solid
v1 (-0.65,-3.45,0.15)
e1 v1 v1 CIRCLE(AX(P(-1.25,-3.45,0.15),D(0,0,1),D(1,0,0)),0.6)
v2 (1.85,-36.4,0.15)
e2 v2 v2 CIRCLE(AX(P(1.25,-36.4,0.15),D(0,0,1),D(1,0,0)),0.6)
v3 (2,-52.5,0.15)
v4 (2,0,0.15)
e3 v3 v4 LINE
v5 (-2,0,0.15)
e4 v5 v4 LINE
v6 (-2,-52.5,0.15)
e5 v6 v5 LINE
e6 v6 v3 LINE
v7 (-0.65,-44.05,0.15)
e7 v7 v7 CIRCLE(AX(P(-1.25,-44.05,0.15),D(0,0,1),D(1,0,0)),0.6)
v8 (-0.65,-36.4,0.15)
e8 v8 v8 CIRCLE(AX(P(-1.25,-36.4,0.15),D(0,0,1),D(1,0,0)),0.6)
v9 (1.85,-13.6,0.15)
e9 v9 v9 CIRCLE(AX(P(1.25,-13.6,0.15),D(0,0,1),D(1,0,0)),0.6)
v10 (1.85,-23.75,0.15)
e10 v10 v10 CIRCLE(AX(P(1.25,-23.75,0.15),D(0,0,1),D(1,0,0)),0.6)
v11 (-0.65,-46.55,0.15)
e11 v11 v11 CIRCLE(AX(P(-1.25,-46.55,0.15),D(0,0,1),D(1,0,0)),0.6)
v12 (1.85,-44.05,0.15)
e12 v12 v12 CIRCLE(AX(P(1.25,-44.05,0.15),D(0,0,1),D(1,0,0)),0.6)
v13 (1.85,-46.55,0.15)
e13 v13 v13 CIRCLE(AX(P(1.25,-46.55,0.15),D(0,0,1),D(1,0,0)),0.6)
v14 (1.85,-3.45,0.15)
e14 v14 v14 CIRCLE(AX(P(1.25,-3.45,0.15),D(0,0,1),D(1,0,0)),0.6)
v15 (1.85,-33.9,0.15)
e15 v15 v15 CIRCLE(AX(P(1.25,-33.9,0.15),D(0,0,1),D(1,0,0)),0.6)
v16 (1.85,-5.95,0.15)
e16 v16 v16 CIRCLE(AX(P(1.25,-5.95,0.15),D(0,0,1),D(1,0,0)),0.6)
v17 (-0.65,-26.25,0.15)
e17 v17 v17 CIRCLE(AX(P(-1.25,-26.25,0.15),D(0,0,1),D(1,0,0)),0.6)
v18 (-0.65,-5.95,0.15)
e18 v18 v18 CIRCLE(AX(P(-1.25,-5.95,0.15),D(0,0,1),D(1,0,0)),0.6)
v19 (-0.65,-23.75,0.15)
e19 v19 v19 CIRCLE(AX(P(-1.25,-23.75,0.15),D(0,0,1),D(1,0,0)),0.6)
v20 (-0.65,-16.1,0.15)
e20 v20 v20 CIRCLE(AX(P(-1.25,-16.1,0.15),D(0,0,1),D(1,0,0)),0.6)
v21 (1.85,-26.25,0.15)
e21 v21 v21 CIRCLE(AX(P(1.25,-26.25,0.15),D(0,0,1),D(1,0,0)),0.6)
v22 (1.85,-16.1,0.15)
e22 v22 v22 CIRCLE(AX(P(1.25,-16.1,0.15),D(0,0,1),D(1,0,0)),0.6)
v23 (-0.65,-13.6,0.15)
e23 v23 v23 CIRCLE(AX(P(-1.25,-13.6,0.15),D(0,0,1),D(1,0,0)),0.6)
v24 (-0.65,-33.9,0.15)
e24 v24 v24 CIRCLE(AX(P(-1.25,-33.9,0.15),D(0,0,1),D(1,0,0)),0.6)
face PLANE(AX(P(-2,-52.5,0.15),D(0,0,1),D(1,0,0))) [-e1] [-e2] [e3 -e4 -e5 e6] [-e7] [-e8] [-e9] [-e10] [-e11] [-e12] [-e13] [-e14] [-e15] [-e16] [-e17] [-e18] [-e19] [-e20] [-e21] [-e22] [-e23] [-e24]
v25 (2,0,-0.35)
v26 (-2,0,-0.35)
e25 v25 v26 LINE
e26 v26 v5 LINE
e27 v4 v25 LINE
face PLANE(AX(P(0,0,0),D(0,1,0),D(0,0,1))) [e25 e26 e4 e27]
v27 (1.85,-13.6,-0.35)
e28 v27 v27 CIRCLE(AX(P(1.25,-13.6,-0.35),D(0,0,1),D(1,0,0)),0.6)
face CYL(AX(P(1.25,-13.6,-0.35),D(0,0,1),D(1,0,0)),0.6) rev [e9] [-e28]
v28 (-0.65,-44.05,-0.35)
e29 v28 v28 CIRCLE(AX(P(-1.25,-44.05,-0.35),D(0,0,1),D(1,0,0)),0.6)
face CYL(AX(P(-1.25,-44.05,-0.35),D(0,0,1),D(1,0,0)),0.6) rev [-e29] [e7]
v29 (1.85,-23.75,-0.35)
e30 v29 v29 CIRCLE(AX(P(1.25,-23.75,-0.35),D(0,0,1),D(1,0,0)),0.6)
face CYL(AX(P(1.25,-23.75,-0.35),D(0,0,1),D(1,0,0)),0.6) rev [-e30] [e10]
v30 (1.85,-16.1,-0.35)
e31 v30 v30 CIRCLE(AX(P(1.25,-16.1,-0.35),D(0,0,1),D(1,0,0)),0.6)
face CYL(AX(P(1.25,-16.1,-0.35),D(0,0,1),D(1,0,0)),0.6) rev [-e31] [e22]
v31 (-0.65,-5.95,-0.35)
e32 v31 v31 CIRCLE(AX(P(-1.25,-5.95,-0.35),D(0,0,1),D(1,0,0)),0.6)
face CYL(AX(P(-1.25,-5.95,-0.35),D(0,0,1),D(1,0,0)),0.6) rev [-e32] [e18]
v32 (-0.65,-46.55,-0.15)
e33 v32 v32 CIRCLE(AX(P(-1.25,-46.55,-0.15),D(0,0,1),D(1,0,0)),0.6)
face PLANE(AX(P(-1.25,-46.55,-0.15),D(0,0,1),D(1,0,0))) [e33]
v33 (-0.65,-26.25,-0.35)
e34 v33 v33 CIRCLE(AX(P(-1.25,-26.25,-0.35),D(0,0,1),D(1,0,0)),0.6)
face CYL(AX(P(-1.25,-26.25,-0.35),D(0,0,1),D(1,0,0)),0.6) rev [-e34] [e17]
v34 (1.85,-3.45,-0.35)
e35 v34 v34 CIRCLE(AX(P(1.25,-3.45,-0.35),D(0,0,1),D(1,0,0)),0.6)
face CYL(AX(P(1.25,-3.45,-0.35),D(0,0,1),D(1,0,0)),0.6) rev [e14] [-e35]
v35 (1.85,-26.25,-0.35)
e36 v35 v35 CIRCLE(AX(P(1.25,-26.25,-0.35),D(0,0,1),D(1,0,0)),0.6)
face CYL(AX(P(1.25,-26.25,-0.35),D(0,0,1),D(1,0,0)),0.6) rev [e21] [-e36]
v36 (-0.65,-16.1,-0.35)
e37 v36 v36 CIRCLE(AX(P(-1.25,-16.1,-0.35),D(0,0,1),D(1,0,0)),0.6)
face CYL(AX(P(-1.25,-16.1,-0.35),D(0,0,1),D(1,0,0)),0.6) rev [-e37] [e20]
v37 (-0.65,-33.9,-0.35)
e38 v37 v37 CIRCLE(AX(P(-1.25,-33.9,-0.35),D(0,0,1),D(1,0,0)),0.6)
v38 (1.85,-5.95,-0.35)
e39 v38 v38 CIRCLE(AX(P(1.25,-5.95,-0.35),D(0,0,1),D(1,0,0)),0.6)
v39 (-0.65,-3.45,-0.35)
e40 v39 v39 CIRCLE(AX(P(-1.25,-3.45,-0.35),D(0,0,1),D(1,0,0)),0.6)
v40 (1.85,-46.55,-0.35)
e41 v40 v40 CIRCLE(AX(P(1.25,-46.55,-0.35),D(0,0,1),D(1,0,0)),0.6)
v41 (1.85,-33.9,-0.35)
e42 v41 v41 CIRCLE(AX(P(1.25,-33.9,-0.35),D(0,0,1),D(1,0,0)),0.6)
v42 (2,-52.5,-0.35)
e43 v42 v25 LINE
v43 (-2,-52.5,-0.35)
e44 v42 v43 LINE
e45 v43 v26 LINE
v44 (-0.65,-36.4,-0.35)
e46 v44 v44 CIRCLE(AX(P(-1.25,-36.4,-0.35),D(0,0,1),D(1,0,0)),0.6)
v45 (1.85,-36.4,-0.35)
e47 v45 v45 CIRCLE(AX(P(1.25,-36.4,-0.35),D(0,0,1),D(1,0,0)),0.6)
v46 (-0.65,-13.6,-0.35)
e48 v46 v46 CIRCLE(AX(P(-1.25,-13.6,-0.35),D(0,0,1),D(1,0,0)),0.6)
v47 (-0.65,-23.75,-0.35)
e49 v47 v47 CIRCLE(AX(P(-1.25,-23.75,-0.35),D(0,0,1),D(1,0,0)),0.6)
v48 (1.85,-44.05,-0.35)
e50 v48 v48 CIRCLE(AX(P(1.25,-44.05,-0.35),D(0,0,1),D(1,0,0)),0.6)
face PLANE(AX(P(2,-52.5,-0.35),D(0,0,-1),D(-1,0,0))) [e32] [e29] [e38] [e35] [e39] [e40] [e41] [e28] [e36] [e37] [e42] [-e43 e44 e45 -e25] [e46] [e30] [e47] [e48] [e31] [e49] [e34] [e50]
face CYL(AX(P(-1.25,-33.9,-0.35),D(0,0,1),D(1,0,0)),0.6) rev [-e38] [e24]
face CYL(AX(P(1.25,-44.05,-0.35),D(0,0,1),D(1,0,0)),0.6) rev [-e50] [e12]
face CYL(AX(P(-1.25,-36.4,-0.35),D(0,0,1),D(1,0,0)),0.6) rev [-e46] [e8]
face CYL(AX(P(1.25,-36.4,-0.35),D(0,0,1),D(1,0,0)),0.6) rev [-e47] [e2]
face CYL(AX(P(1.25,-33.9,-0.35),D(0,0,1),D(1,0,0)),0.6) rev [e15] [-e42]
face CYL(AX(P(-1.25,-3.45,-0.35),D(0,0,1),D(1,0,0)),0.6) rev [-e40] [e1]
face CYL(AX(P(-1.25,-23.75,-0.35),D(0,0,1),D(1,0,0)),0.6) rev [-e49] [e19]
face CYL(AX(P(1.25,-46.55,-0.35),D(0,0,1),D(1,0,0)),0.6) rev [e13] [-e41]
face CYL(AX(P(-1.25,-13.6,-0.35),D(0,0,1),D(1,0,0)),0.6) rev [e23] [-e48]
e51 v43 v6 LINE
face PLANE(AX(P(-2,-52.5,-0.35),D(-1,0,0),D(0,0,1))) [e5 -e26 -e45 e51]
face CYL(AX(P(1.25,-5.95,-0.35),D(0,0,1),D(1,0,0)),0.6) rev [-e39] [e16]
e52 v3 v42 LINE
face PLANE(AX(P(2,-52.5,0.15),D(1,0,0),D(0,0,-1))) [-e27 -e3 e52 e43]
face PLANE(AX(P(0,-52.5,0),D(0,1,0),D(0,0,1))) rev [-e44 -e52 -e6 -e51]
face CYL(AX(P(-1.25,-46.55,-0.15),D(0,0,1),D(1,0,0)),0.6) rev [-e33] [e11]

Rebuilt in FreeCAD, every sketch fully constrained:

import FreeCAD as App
import Part
import Sketcher
from FreeCAD import Vector

doc = App.newDocument("Part")
body = doc.addObject("PartDesign::Body", "Body")

# Sketch on XZ plane
sketch1 = doc.addObject("Sketcher::SketchObject", "Sketch")
body.addObject(sketch1)
sketch1.AttachmentSupport = (doc.XZ_Plane, [""])
sketch1.MapMode = "FlatFace"
sketch1.addGeometry([
    Part.LineSegment(Vector(-2, -0.3, 0), Vector(-2, 0.1, 0)),
    Part.LineSegment(Vector(-2, 0.1, 0), Vector(2, 0.1, 0)),
    Part.LineSegment(Vector(2, 0.1, 0), Vector(2, -0.3, 0)),
    Part.LineSegment(Vector(2, -0.3, 0), Vector(-2, -0.3, 0)),
], False)
sketch1.addConstraint([
    Sketcher.Constraint("Coincident", 0, 2, 1, 1),
    Sketcher.Constraint("Coincident", 1, 2, 2, 1),
    Sketcher.Constraint("Coincident", 2, 2, 3, 1),
    Sketcher.Constraint("Coincident", 3, 2, 0, 1),
    Sketcher.Constraint("Vertical", 0),
    Sketcher.Constraint("Horizontal", 1),
    Sketcher.Constraint("Vertical", 2),
    Sketcher.Constraint("Horizontal", 3),
    Sketcher.Constraint("DistanceX", 1, 1, 1, 2, 4.0),
    Sketcher.Constraint("DistanceY", 0, 1, 0, 2, 0.5),
    Sketcher.Constraint("DistanceX", 0, 2, -1, 1, 2.0),
    Sketcher.Constraint("DistanceY", -1, 1, 0, 2, 0.15),
])
pad1 = doc.addObject("PartDesign::Pad", "Pad")
body.addObject(pad1)
pad1.Profile = sketch1
pad1.Length = 52.5

# Sketch on XY plane
sketch2 = doc.addObject("Sketcher::SketchObject", "Sketch001")
body.addObject(sketch2)
sketch2.AttachmentSupport = (doc.XY_Plane, [""])
sketch2.MapMode = "FlatFace"
sketch2.AttachmentOffset = App.Placement(Vector(0, 0, 0.15), App.Rotation())
sketch2.addGeometry(Part.Circle(Vector(1.2, -3.5, 0), Vector(0, 0, 1), 0.6), False)
sketch2.addConstraint([
    Sketcher.Constraint("Diameter", 0, 1.2),
    Sketcher.Constraint("DistanceX", -1, 1, 0, 3, 1.25),
    Sketcher.Constraint("DistanceY", 0, 3, -1, 1, 3.45),
])
pocket1 = doc.addObject("PartDesign::Pocket", "Pocket")
body.addObject(pocket1)
pocket1.Profile = sketch2
pocket1.Length = 0.5

# Sketch on XY plane
sketch3 = doc.addObject("Sketcher::SketchObject", "Sketch002")
body.addObject(sketch3)
sketch3.AttachmentSupport = (doc.XY_Plane, [""])
sketch3.MapMode = "FlatFace"
sketch3.AttachmentOffset = App.Placement(Vector(0, 0, 0.15), App.Rotation())
sketch3.addGeometry(Part.Circle(Vector(1.2, -6, 0), Vector(0, 0, 1), 0.6), False)
sketch3.addConstraint([
    Sketcher.Constraint("Diameter", 0, 1.2),
    Sketcher.Constraint("DistanceX", -1, 1, 0, 3, 1.25),
    Sketcher.Constraint("DistanceY", 0, 3, -1, 1, 5.95),
])
pocket2 = doc.addObject("PartDesign::Pocket", "Pocket001")
body.addObject(pocket2)
pocket2.Profile = sketch3
pocket2.Length = 0.5

# Sketch on XY plane
sketch4 = doc.addObject("Sketcher::SketchObject", "Sketch003")
body.addObject(sketch4)
sketch4.AttachmentSupport = (doc.XY_Plane, [""])
sketch4.MapMode = "FlatFace"
sketch4.AttachmentOffset = App.Placement(Vector(0, 0, 0.15), App.Rotation())
sketch4.addGeometry(Part.Circle(Vector(1.2, -13.6, 0), Vector(0, 0, 1), 0.6), False)
sketch4.addConstraint([
    Sketcher.Constraint("Diameter", 0, 1.2),
    Sketcher.Constraint("DistanceY", 0, 3, -1, 1, 13.6),
    Sketcher.Constraint("DistanceX", -1, 1, 0, 3, 1.25),
])
pocket3 = doc.addObject("PartDesign::Pocket", "Pocket002")
body.addObject(pocket3)
pocket3.Profile = sketch4
pocket3.Length = 0.5

# Sketch on XY plane
sketch5 = doc.addObject("Sketcher::SketchObject", "Sketch004")
body.addObject(sketch5)
sketch5.AttachmentSupport = (doc.XY_Plane, [""])
sketch5.MapMode = "FlatFace"
sketch5.AttachmentOffset = App.Placement(Vector(0, 0, 0.15), App.Rotation())
sketch5.addGeometry(Part.Circle(Vector(1.2, -16.1, 0), Vector(0, 0, 1), 0.6), False)
sketch5.addConstraint([
    Sketcher.Constraint("Diameter", 0, 1.2),
    Sketcher.Constraint("DistanceY", 0, 3, -1, 1, 16.1),
    Sketcher.Constraint("DistanceX", -1, 1, 0, 3, 1.25),
])
pocket4 = doc.addObject("PartDesign::Pocket", "Pocket003")
body.addObject(pocket4)
pocket4.Profile = sketch5
pocket4.Length = 0.5

# Sketch on XY plane
sketch6 = doc.addObject("Sketcher::SketchObject", "Sketch005")
body.addObject(sketch6)
sketch6.AttachmentSupport = (doc.XY_Plane, [""])
sketch6.MapMode = "FlatFace"
sketch6.AttachmentOffset = App.Placement(Vector(0, 0, 0.15), App.Rotation())
sketch6.addGeometry(Part.Circle(Vector(1.2, -23.8, 0), Vector(0, 0, 1), 0.6), False)
sketch6.addConstraint([
    Sketcher.Constraint("Diameter", 0, 1.2),
    Sketcher.Constraint("DistanceX", -1, 1, 0, 3, 1.25),
    Sketcher.Constraint("DistanceY", 0, 3, -1, 1, 23.75),
])
pocket5 = doc.addObject("PartDesign::Pocket", "Pocket004")
body.addObject(pocket5)
pocket5.Profile = sketch6
pocket5.Length = 0.5

# Sketch on XY plane
sketch7 = doc.addObject("Sketcher::SketchObject", "Sketch006")
body.addObject(sketch7)
sketch7.AttachmentSupport = (doc.XY_Plane, [""])
sketch7.MapMode = "FlatFace"
sketch7.AttachmentOffset = App.Placement(Vector(0, 0, 0.15), App.Rotation())
sketch7.addGeometry(Part.Circle(Vector(1.2, -26.2, 0), Vector(0, 0, 1), 0.6), False)
sketch7.addConstraint([
    Sketcher.Constraint("Diameter", 0, 1.2),
    Sketcher.Constraint("DistanceX", -1, 1, 0, 3, 1.25),
    Sketcher.Constraint("DistanceY", 0, 3, -1, 1, 26.25),
])
pocket6 = doc.addObject("PartDesign::Pocket", "Pocket005")
body.addObject(pocket6)
pocket6.Profile = sketch7
pocket6.Length = 0.5

# Sketch on XY plane
sketch8 = doc.addObject("Sketcher::SketchObject", "Sketch007")
body.addObject(sketch8)
sketch8.AttachmentSupport = (doc.XY_Plane, [""])
sketch8.MapMode = "FlatFace"
sketch8.AttachmentOffset = App.Placement(Vector(0, 0, 0.15), App.Rotation())
sketch8.addGeometry(Part.Circle(Vector(1.2, -33.9, 0), Vector(0, 0, 1), 0.6), False)
sketch8.addConstraint([
    Sketcher.Constraint("Diameter", 0, 1.2),
    Sketcher.Constraint("DistanceY", 0, 3, -1, 1, 33.9),
    Sketcher.Constraint("DistanceX", -1, 1, 0, 3, 1.25),
])
pocket7 = doc.addObject("PartDesign::Pocket", "Pocket006")
body.addObject(pocket7)
pocket7.Profile = sketch8
pocket7.Length = 0.5

# Sketch on XY plane
sketch9 = doc.addObject("Sketcher::SketchObject", "Sketch008")
body.addObject(sketch9)
sketch9.AttachmentSupport = (doc.XY_Plane, [""])
sketch9.MapMode = "FlatFace"
sketch9.AttachmentOffset = App.Placement(Vector(0, 0, 0.15), App.Rotation())
sketch9.addGeometry(Part.Circle(Vector(1.2, -36.4, 0), Vector(0, 0, 1), 0.6), False)
sketch9.addConstraint([
    Sketcher.Constraint("Diameter", 0, 1.2),
    Sketcher.Constraint("DistanceY", 0, 3, -1, 1, 36.4),
    Sketcher.Constraint("DistanceX", -1, 1, 0, 3, 1.25),
])
pocket8 = doc.addObject("PartDesign::Pocket", "Pocket007")
body.addObject(pocket8)
pocket8.Profile = sketch9
pocket8.Length = 0.5

# Sketch on XY plane
sketch10 = doc.addObject("Sketcher::SketchObject", "Sketch009")
body.addObject(sketch10)
sketch10.AttachmentSupport = (doc.XY_Plane, [""])
sketch10.MapMode = "FlatFace"
sketch10.AttachmentOffset = App.Placement(Vector(0, 0, 0.15), App.Rotation())
sketch10.addGeometry(Part.Circle(Vector(1.2, -44, 0), Vector(0, 0, 1), 0.6), False)
sketch10.addConstraint([
    Sketcher.Constraint("Diameter", 0, 1.2),
    Sketcher.Constraint("DistanceX", -1, 1, 0, 3, 1.25),
    Sketcher.Constraint("DistanceY", 0, 3, -1, 1, 44.05),
])
pocket9 = doc.addObject("PartDesign::Pocket", "Pocket008")
body.addObject(pocket9)
pocket9.Profile = sketch10
pocket9.Length = 0.5

# Sketch on XY plane
sketch11 = doc.addObject("Sketcher::SketchObject", "Sketch010")
body.addObject(sketch11)
sketch11.AttachmentSupport = (doc.XY_Plane, [""])
sketch11.MapMode = "FlatFace"
sketch11.AttachmentOffset = App.Placement(Vector(0, 0, 0.15), App.Rotation())
sketch11.addGeometry(Part.Circle(Vector(1.2, -46.5, 0), Vector(0, 0, 1), 0.6), False)
sketch11.addConstraint([
    Sketcher.Constraint("Diameter", 0, 1.2),
    Sketcher.Constraint("DistanceX", -1, 1, 0, 3, 1.25),
    Sketcher.Constraint("DistanceY", 0, 3, -1, 1, 46.55),
])
pocket10 = doc.addObject("PartDesign::Pocket", "Pocket009")
body.addObject(pocket10)
pocket10.Profile = sketch11
pocket10.Length = 0.5

# Sketch on XY plane
sketch12 = doc.addObject("Sketcher::SketchObject", "Sketch011")
body.addObject(sketch12)
sketch12.AttachmentSupport = (doc.XY_Plane, [""])
sketch12.MapMode = "FlatFace"
sketch12.AttachmentOffset = App.Placement(Vector(0, 0, 0.15), App.Rotation())
sketch12.addGeometry(Part.Circle(Vector(-1.2, -3.5, 0), Vector(0, 0, 1), 0.6), False)
sketch12.addConstraint([
    Sketcher.Constraint("Diameter", 0, 1.2),
    Sketcher.Constraint("DistanceX", 0, 3, -1, 1, 1.25),
    Sketcher.Constraint("DistanceY", 0, 3, -1, 1, 3.45),
])
pocket11 = doc.addObject("PartDesign::Pocket", "Pocket010")
body.addObject(pocket11)
pocket11.Profile = sketch12
pocket11.Length = 0.5

# Sketch on XY plane
sketch13 = doc.addObject("Sketcher::SketchObject", "Sketch012")
body.addObject(sketch13)
sketch13.AttachmentSupport = (doc.XY_Plane, [""])
sketch13.MapMode = "FlatFace"
sketch13.AttachmentOffset = App.Placement(Vector(0, 0, 0.15), App.Rotation())
sketch13.addGeometry(Part.Circle(Vector(-1.2, -6, 0), Vector(0, 0, 1), 0.6), False)
sketch13.addConstraint([
    Sketcher.Constraint("Diameter", 0, 1.2),
    Sketcher.Constraint("DistanceX", 0, 3, -1, 1, 1.25),
    Sketcher.Constraint("DistanceY", 0, 3, -1, 1, 5.95),
])
pocket12 = doc.addObject("PartDesign::Pocket", "Pocket011")
body.addObject(pocket12)
pocket12.Profile = sketch13
pocket12.Length = 0.5

# Sketch on XY plane
sketch14 = doc.addObject("Sketcher::SketchObject", "Sketch013")
body.addObject(sketch14)
sketch14.AttachmentSupport = (doc.XY_Plane, [""])
sketch14.MapMode = "FlatFace"
sketch14.AttachmentOffset = App.Placement(Vector(0, 0, 0.15), App.Rotation())
sketch14.addGeometry(Part.Circle(Vector(-1.2, -13.6, 0), Vector(0, 0, 1), 0.6), False)
sketch14.addConstraint([
    Sketcher.Constraint("Diameter", 0, 1.2),
    Sketcher.Constraint("DistanceY", 0, 3, -1, 1, 13.6),
    Sketcher.Constraint("DistanceX", 0, 3, -1, 1, 1.25),
])
pocket13 = doc.addObject("PartDesign::Pocket", "Pocket012")
body.addObject(pocket13)
pocket13.Profile = sketch14
pocket13.Length = 0.5

# Sketch on XY plane
sketch15 = doc.addObject("Sketcher::SketchObject", "Sketch014")
body.addObject(sketch15)
sketch15.AttachmentSupport = (doc.XY_Plane, [""])
sketch15.MapMode = "FlatFace"
sketch15.AttachmentOffset = App.Placement(Vector(0, 0, 0.15), App.Rotation())
sketch15.addGeometry(Part.Circle(Vector(-1.2, -16.1, 0), Vector(0, 0, 1), 0.6), False)
sketch15.addConstraint([
    Sketcher.Constraint("Diameter", 0, 1.2),
    Sketcher.Constraint("DistanceY", 0, 3, -1, 1, 16.1),
    Sketcher.Constraint("DistanceX", 0, 3, -1, 1, 1.25),
])
pocket14 = doc.addObject("PartDesign::Pocket", "Pocket013")
body.addObject(pocket14)
pocket14.Profile = sketch15
pocket14.Length = 0.5

# Sketch on XY plane
sketch16 = doc.addObject("Sketcher::SketchObject", "Sketch015")
body.addObject(sketch16)
sketch16.AttachmentSupport = (doc.XY_Plane, [""])
sketch16.MapMode = "FlatFace"
sketch16.AttachmentOffset = App.Placement(Vector(0, 0, 0.15), App.Rotation())
sketch16.addGeometry(Part.Circle(Vector(-1.2, -23.8, 0), Vector(0, 0, 1), 0.6), False)
sketch16.addConstraint([
    Sketcher.Constraint("Diameter", 0, 1.2),
    Sketcher.Constraint("DistanceX", 0, 3, -1, 1, 1.25),
    Sketcher.Constraint("DistanceY", 0, 3, -1, 1, 23.75),
])
pocket15 = doc.addObject("PartDesign::Pocket", "Pocket014")
body.addObject(pocket15)
pocket15.Profile = sketch16
pocket15.Length = 0.5

# Sketch on XY plane
sketch17 = doc.addObject("Sketcher::SketchObject", "Sketch016")
body.addObject(sketch17)
sketch17.AttachmentSupport = (doc.XY_Plane, [""])
sketch17.MapMode = "FlatFace"
sketch17.AttachmentOffset = App.Placement(Vector(0, 0, 0.15), App.Rotation())
sketch17.addGeometry(Part.Circle(Vector(-1.2, -26.2, 0), Vector(0, 0, 1), 0.6), False)
sketch17.addConstraint([
    Sketcher.Constraint("Diameter", 0, 1.2),
    Sketcher.Constraint("DistanceX", 0, 3, -1, 1, 1.25),
    Sketcher.Constraint("DistanceY", 0, 3, -1, 1, 26.25),
])
pocket16 = doc.addObject("PartDesign::Pocket", "Pocket015")
body.addObject(pocket16)
pocket16.Profile = sketch17
pocket16.Length = 0.5

# Sketch on XY plane
sketch18 = doc.addObject("Sketcher::SketchObject", "Sketch017")
body.addObject(sketch18)
sketch18.AttachmentSupport = (doc.XY_Plane, [""])
sketch18.MapMode = "FlatFace"
sketch18.AttachmentOffset = App.Placement(Vector(0, 0, 0.15), App.Rotation())
sketch18.addGeometry(Part.Circle(Vector(-1.2, -33.9, 0), Vector(0, 0, 1), 0.6), False)
sketch18.addConstraint([
    Sketcher.Constraint("Diameter", 0, 1.2),
    Sketcher.Constraint("DistanceY", 0, 3, -1, 1, 33.9),
    Sketcher.Constraint("DistanceX", 0, 3, -1, 1, 1.25),
])
pocket17 = doc.addObject("PartDesign::Pocket", "Pocket016")
body.addObject(pocket17)
pocket17.Profile = sketch18
pocket17.Length = 0.5

# Sketch on XY plane
sketch19 = doc.addObject("Sketcher::SketchObject", "Sketch018")
body.addObject(sketch19)
sketch19.AttachmentSupport = (doc.XY_Plane, [""])
sketch19.MapMode = "FlatFace"
sketch19.AttachmentOffset = App.Placement(Vector(0, 0, 0.15), App.Rotation())
sketch19.addGeometry(Part.Circle(Vector(-1.2, -36.4, 0), Vector(0, 0, 1), 0.6), False)
sketch19.addConstraint([
    Sketcher.Constraint("Diameter", 0, 1.2),
    Sketcher.Constraint("DistanceY", 0, 3, -1, 1, 36.4),
    Sketcher.Constraint("DistanceX", 0, 3, -1, 1, 1.25),
])
pocket18 = doc.addObject("PartDesign::Pocket", "Pocket017")
body.addObject(pocket18)
pocket18.Profile = sketch19
pocket18.Length = 0.5

# Sketch on XY plane
sketch20 = doc.addObject("Sketcher::SketchObject", "Sketch019")
body.addObject(sketch20)
sketch20.AttachmentSupport = (doc.XY_Plane, [""])
sketch20.MapMode = "FlatFace"
sketch20.AttachmentOffset = App.Placement(Vector(0, 0, 0.15), App.Rotation())
sketch20.addGeometry(Part.Circle(Vector(-1.2, -44, 0), Vector(0, 0, 1), 0.6), False)
sketch20.addConstraint([
    Sketcher.Constraint("Diameter", 0, 1.2),
    Sketcher.Constraint("DistanceX", 0, 3, -1, 1, 1.25),
    Sketcher.Constraint("DistanceY", 0, 3, -1, 1, 44.05),
])
pocket19 = doc.addObject("PartDesign::Pocket", "Pocket018")
body.addObject(pocket19)
pocket19.Profile = sketch20
pocket19.Length = 0.5

# Sketch on XY plane
sketch21 = doc.addObject("Sketcher::SketchObject", "Sketch020")
body.addObject(sketch21)
sketch21.AttachmentSupport = (doc.XY_Plane, [""])
sketch21.MapMode = "FlatFace"
sketch21.AttachmentOffset = App.Placement(Vector(0, 0, 0.15), App.Rotation())
sketch21.addGeometry(Part.Circle(Vector(-1.2, -46.5, 0), Vector(0, 0, 1), 0.6), False)
sketch21.addConstraint([
    Sketcher.Constraint("Diameter", 0, 1.2),
    Sketcher.Constraint("DistanceX", 0, 3, -1, 1, 1.25),
    Sketcher.Constraint("DistanceY", 0, 3, -1, 1, 46.55),
])
pocket20 = doc.addObject("PartDesign::Pocket", "Pocket019")
body.addObject(pocket20)
pocket20.Profile = sketch21
pocket20.Length = 0.3

doc.recompute()
